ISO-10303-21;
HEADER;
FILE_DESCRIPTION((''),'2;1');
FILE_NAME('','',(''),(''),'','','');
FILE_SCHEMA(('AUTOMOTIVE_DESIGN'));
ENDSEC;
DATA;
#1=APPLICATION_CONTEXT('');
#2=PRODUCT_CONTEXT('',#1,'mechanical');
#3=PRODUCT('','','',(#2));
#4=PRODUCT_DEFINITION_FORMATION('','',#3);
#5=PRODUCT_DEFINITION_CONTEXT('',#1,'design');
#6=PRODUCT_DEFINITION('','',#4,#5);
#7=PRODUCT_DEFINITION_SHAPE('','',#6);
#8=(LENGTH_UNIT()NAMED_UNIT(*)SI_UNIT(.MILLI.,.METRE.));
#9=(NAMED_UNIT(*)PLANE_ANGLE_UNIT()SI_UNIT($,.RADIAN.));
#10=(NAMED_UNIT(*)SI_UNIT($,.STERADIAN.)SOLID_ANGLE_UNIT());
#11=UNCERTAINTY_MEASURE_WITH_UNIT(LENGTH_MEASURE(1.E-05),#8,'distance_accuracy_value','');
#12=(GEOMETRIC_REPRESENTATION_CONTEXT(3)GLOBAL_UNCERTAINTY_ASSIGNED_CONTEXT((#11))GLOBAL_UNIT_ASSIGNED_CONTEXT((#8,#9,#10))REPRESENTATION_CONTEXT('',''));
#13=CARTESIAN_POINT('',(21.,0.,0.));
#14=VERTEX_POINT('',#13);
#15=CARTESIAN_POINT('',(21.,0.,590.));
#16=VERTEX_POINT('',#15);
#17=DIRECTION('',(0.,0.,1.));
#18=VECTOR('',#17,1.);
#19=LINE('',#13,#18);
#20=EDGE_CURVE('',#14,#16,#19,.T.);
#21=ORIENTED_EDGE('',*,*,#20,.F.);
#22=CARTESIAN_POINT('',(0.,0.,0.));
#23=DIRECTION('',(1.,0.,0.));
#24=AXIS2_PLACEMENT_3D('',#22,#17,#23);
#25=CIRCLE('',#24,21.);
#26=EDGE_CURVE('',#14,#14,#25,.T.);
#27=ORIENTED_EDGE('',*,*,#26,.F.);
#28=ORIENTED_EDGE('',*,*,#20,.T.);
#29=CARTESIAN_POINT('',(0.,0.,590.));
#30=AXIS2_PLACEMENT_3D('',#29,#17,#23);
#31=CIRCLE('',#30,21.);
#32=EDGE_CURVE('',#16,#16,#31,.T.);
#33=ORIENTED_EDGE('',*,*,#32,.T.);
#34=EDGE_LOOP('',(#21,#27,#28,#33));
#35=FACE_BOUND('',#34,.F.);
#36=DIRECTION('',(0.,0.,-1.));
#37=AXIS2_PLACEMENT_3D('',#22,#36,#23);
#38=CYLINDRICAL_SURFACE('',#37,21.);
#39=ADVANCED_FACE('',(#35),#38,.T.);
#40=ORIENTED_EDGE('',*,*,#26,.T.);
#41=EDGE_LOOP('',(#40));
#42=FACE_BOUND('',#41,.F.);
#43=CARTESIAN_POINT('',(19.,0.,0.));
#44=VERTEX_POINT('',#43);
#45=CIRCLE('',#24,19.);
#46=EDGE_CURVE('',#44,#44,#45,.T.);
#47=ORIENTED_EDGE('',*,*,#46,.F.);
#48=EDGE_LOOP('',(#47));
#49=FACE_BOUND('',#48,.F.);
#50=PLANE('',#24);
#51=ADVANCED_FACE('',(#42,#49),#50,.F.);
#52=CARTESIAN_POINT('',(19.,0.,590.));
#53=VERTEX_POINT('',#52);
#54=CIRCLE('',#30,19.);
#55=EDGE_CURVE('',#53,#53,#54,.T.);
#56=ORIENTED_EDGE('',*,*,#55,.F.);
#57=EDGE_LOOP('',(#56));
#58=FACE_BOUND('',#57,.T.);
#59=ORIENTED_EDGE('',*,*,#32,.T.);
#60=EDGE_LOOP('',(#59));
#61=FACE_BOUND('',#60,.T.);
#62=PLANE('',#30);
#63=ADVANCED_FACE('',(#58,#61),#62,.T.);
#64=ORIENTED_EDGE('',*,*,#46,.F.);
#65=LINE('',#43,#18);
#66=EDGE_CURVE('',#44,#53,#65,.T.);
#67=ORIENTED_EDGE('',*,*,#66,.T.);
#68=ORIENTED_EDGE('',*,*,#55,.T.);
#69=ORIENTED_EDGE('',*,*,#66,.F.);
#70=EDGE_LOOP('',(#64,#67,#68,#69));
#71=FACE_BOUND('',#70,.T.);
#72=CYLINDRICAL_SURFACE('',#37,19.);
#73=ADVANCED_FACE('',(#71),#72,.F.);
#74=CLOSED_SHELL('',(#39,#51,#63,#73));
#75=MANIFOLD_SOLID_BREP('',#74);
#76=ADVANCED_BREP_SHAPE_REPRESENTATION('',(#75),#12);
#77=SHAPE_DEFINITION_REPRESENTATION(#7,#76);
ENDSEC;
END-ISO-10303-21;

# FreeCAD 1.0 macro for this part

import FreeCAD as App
import Part
import Sketcher
Q = App.Units.Quantity

doc = App.newDocument("Part")
body = doc.addObject("PartDesign::Body", "Body")

# Sketch on XY plane
sketch1 = body.newObject("Sketcher::SketchObject", "Sketch")
sketch1.AttachmentSupport = (doc.getObject("XY_Plane"), [""])
sketch1.MapMode = "FlatFace"
sketch1.addGeometry(Part.Circle(App.Vector(0, 0, 0), App.Vector(0, 0, 1), 21), False)
sketch1.addGeometry(Part.Circle(App.Vector(0, 0, 0), App.Vector(0, 0, 1), 19), False)
sketch1.addConstraint(Sketcher.Constraint("Coincident", 0, 3, -1, 1))
sketch1.addConstraint(Sketcher.Constraint("Coincident", 1, 3, -1, 1))
sketch1.addConstraint(Sketcher.Constraint("Diameter", 0, Q("42 mm")))
sketch1.addConstraint(Sketcher.Constraint("Diameter", 1, Q("38 mm")))
pad1 = body.newObject("PartDesign::Pad", "Pad")
pad1.Profile = sketch1
pad1.Length = 590

doc.recompute()
